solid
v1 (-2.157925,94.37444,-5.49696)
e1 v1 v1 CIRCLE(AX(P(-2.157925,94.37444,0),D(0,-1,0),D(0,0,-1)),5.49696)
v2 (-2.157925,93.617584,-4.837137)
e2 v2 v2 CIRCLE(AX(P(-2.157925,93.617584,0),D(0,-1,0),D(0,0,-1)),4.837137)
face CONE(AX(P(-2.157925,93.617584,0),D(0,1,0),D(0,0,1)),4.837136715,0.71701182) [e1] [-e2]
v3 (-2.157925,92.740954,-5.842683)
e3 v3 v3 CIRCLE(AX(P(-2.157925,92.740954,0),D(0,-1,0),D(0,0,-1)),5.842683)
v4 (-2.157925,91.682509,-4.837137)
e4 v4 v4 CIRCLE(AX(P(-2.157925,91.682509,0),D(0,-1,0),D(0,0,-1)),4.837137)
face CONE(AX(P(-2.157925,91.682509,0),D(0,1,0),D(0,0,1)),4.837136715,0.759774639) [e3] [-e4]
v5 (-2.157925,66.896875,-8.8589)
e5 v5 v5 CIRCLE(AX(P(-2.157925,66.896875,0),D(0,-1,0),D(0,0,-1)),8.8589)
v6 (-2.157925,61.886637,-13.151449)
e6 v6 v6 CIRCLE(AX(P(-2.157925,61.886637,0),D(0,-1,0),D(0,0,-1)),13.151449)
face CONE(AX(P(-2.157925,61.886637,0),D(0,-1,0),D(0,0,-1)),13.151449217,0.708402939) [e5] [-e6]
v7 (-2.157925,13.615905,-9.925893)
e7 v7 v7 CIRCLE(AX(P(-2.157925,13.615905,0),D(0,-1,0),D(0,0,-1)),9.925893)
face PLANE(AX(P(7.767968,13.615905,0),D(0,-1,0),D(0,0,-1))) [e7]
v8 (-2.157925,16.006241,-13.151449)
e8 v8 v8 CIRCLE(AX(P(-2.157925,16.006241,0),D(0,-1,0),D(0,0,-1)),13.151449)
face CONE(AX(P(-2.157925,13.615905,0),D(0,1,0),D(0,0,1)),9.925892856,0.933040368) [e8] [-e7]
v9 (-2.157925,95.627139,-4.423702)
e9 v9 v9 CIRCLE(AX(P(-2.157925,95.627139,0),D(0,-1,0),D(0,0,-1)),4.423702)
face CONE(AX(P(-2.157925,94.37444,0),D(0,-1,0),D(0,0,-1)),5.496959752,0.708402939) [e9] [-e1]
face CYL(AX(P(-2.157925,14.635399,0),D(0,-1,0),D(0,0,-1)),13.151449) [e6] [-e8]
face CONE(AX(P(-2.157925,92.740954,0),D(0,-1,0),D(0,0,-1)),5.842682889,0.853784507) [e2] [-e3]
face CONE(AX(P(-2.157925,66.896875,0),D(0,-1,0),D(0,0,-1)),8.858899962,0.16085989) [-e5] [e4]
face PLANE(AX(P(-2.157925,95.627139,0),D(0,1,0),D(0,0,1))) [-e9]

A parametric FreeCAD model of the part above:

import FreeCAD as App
import Part
import Sketcher
from FreeCAD import Vector
Q = App.Units.Quantity

doc = App.newDocument("Part")
body = doc.addObject("PartDesign::Body", "Body")

sketch1 = body.newObject("Sketcher::SketchObject", "Sketch")
sketch1.AttachmentSupport = (doc.getObject("XY_Plane"), [""])
sketch1.MapMode = "FlatFace"
sketch1.addGeometry(Part.LineSegment(Vector(2.3, 95.6, 0), Vector(-2.2, 95.6, 0)), False)
sketch1.addGeometry(Part.LineSegment(Vector(-2.2, 95.6, 0), Vector(-2.2, 13.6, 0)), False)
sketch1.addGeometry(Part.LineSegment(Vector(-2.2, 13.6, 0), Vector(7.8, 13.6, 0)), False)
sketch1.addGeometry(Part.LineSegment(Vector(7.8, 13.6, 0), Vector(11, 16, 0)), False)
sketch1.addGeometry(Part.LineSegment(Vector(11, 16, 0), Vector(11, 61.9, 0)), False)
sketch1.addGeometry(Part.LineSegment(Vector(11, 61.9, 0), Vector(6.7, 66.9, 0)), False)
sketch1.addGeometry(Part.LineSegment(Vector(6.7, 66.9, 0), Vector(2.7, 91.7, 0)), False)
sketch1.addGeometry(Part.LineSegment(Vector(2.7, 91.7, 0), Vector(3.7, 92.7, 0)), False)
sketch1.addGeometry(Part.LineSegment(Vector(3.7, 92.7, 0), Vector(2.7, 93.6, 0)), False)
sketch1.addGeometry(Part.LineSegment(Vector(2.7, 93.6, 0), Vector(3.3, 94.4, 0)), False)
sketch1.addGeometry(Part.LineSegment(Vector(3.3, 94.4, 0), Vector(2.3, 95.6, 0)), False)
sketch1.addGeometry(Part.LineSegment(Vector(-2.2, 13.6, 0), Vector(-2.2, 95.6, 0)), True)
sketch1.addConstraint(Sketcher.Constraint("Coincident", 0, 2, 1, 1))
sketch1.addConstraint(Sketcher.Constraint("Coincident", 1, 2, 2, 1))
sketch1.addConstraint(Sketcher.Constraint("Coincident", 2, 2, 3, 1))
sketch1.addConstraint(Sketcher.Constraint("Coincident", 3, 2, 4, 1))
sketch1.addConstraint(Sketcher.Constraint("Coincident", 4, 2, 5, 1))
sketch1.addConstraint(Sketcher.Constraint("Coincident", 5, 2, 6, 1))
sketch1.addConstraint(Sketcher.Constraint("Coincident", 6, 2, 7, 1))
sketch1.addConstraint(Sketcher.Constraint("Coincident", 7, 2, 8, 1))
sketch1.addConstraint(Sketcher.Constraint("Coincident", 8, 2, 9, 1))
sketch1.addConstraint(Sketcher.Constraint("Coincident", 9, 2, 10, 1))
sketch1.addConstraint(Sketcher.Constraint("Coincident", 10, 2, 0, 1))
sketch1.addConstraint(Sketcher.Constraint("Horizontal", 0))
sketch1.addConstraint(Sketcher.Constraint("Vertical", 1))
sketch1.addConstraint(Sketcher.Constraint("Horizontal", 2))
sketch1.addConstraint(Sketcher.Constraint("Vertical", 4))
sketch1.addConstraint(Sketcher.Constraint("Vertical", 11))
sketch1.addConstraint(Sketcher.Constraint("Coincident", 11, 1, 1, 2))
sketch1.addConstraint(Sketcher.Constraint("Perpendicular", 8, 9))
sketch1.addConstraint(Sketcher.Constraint("Parallel", 5, 10))
sketch1.addConstraint(Sketcher.Constraint("Horizontal", 10, 2, 11, 2))
sketch1.addConstraint(Sketcher.Constraint("Vertical", 6, 2, 8, 2))
sketch1.addConstraint(Sketcher.Constraint("DistanceY", 3, 2, 0, 2, Q("79.620899 mm")))
sketch1.addConstraint(Sketcher.Constraint("DistanceX", 0, 2, 5, 2, Q("8.8589 mm")))
sketch1.addConstraint(Sketcher.Constraint("DistanceY", 9, 2, 0, 2, Q("1.2527 mm")))
sketch1.addConstraint(Sketcher.Constraint("Distance", 5, Q("6.597611 mm")))
sketch1.addConstraint(Sketcher.Constraint("Distance", 7, Q("1.459941 mm")))
sketch1.addConstraint(Sketcher.Constraint("Distance", 9, Q("1.00409 mm")))
sketch1.addConstraint(Sketcher.Constraint("DistanceX", 0, 2, 0, 1, Q("4.423702 mm")))
sketch1.addConstraint(Sketcher.Constraint("DistanceX", 2, 1, 2, 2, Q("9.925893 mm")))
sketch1.addConstraint(Sketcher.Constraint("DistanceY", 1, 2, 1, 1, Q("82.011235 mm")))
sketch1.addConstraint(Sketcher.Constraint("DistanceY", 4, 1, 4, 2, Q("45.880396 mm")))
sketch1.addConstraint(Sketcher.Constraint("DistanceY", -1, 1, 0, 2, Q("95.627139 mm")))
sketch1.addConstraint(Sketcher.Constraint("DistanceX", -1, 1, 2, 2, Q("7.767968 mm")))
sketch1.addConstraint(Sketcher.Constraint("DistanceX", -1, 1, 6, 2, Q("2.679212 mm")))
sketch1.addConstraint(Sketcher.Constraint("DistanceY", -1, 1, 6, 2, Q("91.682509 mm")))
sketch1.addConstraint(Sketcher.Constraint("DistanceX", -1, 1, 7, 2, Q("3.684758 mm")))
revolution = body.newObject("PartDesign::Revolution", "Revolution")
revolution.Profile = sketch1
revolution.ReferenceAxis = (sketch1, ["Axis0"])
revolution.Angle = 360

doc.recompute()
